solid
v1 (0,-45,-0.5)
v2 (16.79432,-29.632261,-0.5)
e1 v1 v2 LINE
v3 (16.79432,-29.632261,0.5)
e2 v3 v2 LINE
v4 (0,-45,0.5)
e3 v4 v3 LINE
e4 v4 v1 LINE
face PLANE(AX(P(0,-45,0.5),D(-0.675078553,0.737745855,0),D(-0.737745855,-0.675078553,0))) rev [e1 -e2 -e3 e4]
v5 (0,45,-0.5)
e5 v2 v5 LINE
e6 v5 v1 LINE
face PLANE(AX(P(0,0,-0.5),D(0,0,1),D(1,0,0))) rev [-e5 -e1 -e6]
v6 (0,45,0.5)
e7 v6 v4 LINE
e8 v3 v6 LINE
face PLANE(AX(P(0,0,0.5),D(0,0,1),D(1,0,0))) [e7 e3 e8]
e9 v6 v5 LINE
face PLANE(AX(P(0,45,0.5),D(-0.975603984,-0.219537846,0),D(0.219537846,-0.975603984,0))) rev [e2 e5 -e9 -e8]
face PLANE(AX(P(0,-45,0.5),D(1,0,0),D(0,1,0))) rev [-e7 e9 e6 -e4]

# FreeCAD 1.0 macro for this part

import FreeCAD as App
import Part
import Sketcher
from FreeCAD import Vector


def add_polygon(sketch, points):
    """Adds a closed chain of lines whose ends are joined by coincident constraints."""
    first, n = sketch.GeometryCount, len(points)
    for a, b in zip(points, points[1:] + points[:1]):
        sketch.addGeometry(Part.LineSegment(App.Vector(*a, 0), App.Vector(*b, 0)), False)
    for i in range(n):
        sketch.addConstraint(Sketcher.Constraint("Coincident", first + i, 2, first + (i + 1) % n, 1))

doc = App.newDocument("Part")
body = doc.addObject("PartDesign::Body", "Body")

# Sketch on XY plane
sketch1 = body.newObject("Sketcher::SketchObject", "Sketch")
sketch1.AttachmentSupport = (doc.getObject("XY_Plane"), [""])
sketch1.MapMode = "FlatFace"
add_polygon(sketch1, [(0, 45), (0, -45), (17, -30)])  # lines 0-2
sketch1.addConstraint(Sketcher.Constraint("Vertical", 0))
sketch1.addConstraint(Sketcher.Constraint("Symmetric", 0, 2, 2, 2, -1, 1))
sketch1.addConstraint(Sketcher.Constraint("DistanceY", 0, 2, 0, 1, 90.0))
sketch1.addConstraint(Sketcher.Constraint("Distance", 1, 22.764371))
sketch1.addConstraint(Sketcher.Constraint("Distance", 2, 76.49852))
pad1 = body.newObject("PartDesign::Pad", "Pad")
pad1.Profile = sketch1
pad1.Length = 1
pad1.Midplane = True

doc.recompute()
